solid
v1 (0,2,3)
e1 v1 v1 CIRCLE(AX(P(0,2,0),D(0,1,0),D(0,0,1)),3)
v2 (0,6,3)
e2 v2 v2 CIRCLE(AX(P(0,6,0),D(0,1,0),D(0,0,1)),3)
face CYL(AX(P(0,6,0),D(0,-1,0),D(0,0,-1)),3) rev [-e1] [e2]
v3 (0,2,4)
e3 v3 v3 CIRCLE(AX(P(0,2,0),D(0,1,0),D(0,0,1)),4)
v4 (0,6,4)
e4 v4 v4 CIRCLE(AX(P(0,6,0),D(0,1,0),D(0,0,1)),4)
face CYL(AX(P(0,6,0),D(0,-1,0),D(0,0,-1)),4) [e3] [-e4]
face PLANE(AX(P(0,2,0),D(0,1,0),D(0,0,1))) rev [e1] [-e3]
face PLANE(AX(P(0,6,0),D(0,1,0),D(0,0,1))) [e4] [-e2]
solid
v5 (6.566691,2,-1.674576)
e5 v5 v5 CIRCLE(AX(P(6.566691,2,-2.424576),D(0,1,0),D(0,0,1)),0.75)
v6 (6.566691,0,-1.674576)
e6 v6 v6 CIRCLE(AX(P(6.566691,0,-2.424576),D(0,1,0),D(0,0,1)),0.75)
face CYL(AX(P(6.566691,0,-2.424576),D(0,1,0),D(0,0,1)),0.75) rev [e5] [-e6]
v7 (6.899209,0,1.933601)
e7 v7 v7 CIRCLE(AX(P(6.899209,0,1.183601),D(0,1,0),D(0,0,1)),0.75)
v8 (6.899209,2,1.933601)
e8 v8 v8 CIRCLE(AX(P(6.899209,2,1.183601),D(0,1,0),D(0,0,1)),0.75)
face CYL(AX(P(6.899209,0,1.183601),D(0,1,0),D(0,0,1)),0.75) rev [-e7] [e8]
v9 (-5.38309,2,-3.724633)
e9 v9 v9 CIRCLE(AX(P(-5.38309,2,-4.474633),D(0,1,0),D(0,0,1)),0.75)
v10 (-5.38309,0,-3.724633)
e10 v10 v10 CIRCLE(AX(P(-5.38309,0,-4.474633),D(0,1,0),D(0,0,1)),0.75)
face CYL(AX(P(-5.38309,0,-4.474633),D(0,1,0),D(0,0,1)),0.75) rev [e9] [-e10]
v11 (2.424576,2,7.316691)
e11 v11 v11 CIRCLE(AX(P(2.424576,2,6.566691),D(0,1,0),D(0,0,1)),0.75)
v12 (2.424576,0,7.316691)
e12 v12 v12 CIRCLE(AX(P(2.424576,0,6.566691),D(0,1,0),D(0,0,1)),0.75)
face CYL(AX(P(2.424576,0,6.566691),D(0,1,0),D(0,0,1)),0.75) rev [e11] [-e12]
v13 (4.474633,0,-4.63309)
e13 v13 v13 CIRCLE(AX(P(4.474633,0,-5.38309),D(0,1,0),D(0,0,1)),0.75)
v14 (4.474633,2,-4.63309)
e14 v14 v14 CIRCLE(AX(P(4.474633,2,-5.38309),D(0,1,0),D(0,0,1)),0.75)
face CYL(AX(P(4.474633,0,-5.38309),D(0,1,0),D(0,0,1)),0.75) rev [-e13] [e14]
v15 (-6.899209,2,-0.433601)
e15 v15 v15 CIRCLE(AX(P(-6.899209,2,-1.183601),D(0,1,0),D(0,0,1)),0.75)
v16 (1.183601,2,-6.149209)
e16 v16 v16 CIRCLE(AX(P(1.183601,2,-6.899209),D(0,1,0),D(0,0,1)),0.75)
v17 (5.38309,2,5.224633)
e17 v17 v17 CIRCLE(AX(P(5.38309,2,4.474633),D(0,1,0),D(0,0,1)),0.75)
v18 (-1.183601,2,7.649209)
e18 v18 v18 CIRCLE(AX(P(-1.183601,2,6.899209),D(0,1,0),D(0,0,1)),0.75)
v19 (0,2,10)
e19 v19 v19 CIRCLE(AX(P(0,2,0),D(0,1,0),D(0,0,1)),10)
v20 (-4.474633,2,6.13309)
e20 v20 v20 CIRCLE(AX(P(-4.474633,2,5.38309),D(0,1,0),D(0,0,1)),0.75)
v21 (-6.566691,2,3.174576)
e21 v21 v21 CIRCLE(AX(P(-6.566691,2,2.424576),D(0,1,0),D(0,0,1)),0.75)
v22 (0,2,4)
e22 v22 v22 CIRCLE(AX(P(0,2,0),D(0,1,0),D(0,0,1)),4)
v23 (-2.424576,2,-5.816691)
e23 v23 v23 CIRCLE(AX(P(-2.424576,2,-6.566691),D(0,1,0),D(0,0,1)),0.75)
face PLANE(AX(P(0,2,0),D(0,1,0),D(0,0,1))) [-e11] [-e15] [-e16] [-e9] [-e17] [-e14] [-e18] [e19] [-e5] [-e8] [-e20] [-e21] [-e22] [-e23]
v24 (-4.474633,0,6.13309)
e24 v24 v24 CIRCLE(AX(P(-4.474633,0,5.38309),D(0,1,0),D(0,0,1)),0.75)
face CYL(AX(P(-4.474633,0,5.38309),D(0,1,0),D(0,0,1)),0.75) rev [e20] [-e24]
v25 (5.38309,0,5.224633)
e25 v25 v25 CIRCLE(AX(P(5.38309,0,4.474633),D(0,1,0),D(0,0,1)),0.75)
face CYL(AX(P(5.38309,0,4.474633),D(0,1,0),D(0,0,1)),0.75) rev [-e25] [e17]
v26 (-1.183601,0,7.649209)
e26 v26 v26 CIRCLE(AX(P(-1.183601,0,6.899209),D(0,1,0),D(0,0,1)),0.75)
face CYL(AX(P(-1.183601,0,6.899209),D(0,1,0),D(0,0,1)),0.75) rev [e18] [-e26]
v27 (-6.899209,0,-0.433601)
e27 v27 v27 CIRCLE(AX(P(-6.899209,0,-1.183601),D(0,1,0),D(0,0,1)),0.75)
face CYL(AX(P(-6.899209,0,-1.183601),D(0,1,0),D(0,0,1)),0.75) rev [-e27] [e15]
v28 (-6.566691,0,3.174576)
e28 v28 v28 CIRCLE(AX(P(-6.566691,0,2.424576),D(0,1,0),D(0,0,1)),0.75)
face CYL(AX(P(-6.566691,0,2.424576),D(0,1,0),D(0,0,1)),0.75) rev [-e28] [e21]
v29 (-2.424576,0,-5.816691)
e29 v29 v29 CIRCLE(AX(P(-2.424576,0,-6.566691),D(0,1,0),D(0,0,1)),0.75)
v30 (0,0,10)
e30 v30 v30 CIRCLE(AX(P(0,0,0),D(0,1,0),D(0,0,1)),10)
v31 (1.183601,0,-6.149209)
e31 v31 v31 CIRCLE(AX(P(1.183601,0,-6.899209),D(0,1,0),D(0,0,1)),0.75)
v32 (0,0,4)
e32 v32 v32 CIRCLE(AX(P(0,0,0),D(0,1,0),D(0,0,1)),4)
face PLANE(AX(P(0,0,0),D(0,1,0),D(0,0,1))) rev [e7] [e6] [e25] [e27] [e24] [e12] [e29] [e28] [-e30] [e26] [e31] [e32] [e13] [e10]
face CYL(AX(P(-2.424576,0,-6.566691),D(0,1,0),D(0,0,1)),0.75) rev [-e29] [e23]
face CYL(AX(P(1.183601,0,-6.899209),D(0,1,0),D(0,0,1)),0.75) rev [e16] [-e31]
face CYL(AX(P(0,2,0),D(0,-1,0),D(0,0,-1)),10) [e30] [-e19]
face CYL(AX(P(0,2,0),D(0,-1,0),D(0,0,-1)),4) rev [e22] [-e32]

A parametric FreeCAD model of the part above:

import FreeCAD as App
import Part
import Sketcher
Q = App.Units.Quantity

doc = App.newDocument("Part")
body = doc.addObject("PartDesign::Body", "Body")

# Sketch on XZ plane
sketch1 = body.newObject("Sketcher::SketchObject", "Sketch")
sketch1.AttachmentSupport = (doc.getObject("XZ_Plane"), [""])
sketch1.MapMode = "FlatFace"
sketch1.addGeometry(Part.Circle(App.Vector(0, 0, 0), App.Vector(0, 0, 1), 10), False)
sketch1.addGeometry(Part.Circle(App.Vector(0, 0, 0), App.Vector(0, 0, 1), 4), False)
sketch1.addConstraint(Sketcher.Constraint("Coincident", 0, 3, -1, 1))
sketch1.addConstraint(Sketcher.Constraint("Coincident", 1, 3, -1, 1))
sketch1.addConstraint(Sketcher.Constraint("Diameter", 0, Q("20 mm")))
sketch1.addConstraint(Sketcher.Constraint("Diameter", 1, Q("8 mm")))
pad1 = body.newObject("PartDesign::Pad", "Pad")
pad1.Profile = sketch1
pad1.Length = 2
pad1.Reversed = True

# Sketch on XZ plane
sketch2 = body.newObject("Sketcher::SketchObject", "Sketch001")
sketch2.AttachmentSupport = (doc.getObject("XZ_Plane"), [""])
sketch2.MapMode = "FlatFace"
sketch2.AttachmentOffset = App.Placement(App.Vector(0, 0, -2), App.Rotation())
sketch2.addGeometry(Part.Circle(App.Vector(-5.4, -4.5, 0), App.Vector(0, 0, 1), 0.8), False)
sketch2.addGeometry(Part.Circle(App.Vector(-2.4, -6.6, 0), App.Vector(0, 0, 1), 0.8), False)
sketch2.addGeometry(Part.Circle(App.Vector(1.2, -6.9, 0), App.Vector(0, 0, 1), 0.8), False)
sketch2.addGeometry(Part.Circle(App.Vector(4.5, -5.4, 0), App.Vector(0, 0, 1), 0.8), False)
sketch2.addGeometry(Part.Circle(App.Vector(6.6, -2.4, 0), App.Vector(0, 0, 1), 0.8), False)
sketch2.addGeometry(Part.Circle(App.Vector(6.9, 1.2, 0), App.Vector(0, 0, 1), 0.8), False)
sketch2.addGeometry(Part.Circle(App.Vector(5.4, 4.5, 0), App.Vector(0, 0, 1), 0.8), False)
sketch2.addGeometry(Part.Circle(App.Vector(2.4, 6.6, 0), App.Vector(0, 0, 1), 0.8), False)
sketch2.addGeometry(Part.Circle(App.Vector(-1.2, 6.9, 0), App.Vector(0, 0, 1), 0.8), False)
sketch2.addGeometry(Part.Circle(App.Vector(-4.5, 5.4, 0), App.Vector(0, 0, 1), 0.8), False)
sketch2.addGeometry(Part.Circle(App.Vector(-6.6, 2.4, 0), App.Vector(0, 0, 1), 0.8), False)
sketch2.addGeometry(Part.Circle(App.Vector(-6.9, -1.2, 0), App.Vector(0, 0, 1), 0.8), False)
sketch2.addConstraint(Sketcher.Constraint("Equal", 0, 1))
sketch2.addConstraint(Sketcher.Constraint("Equal", 1, 2))
sketch2.addConstraint(Sketcher.Constraint("Equal", 2, 3))
sketch2.addConstraint(Sketcher.Constraint("Equal", 3, 4))
sketch2.addConstraint(Sketcher.Constraint("Equal", 4, 5))
sketch2.addConstraint(Sketcher.Constraint("Equal", 5, 6))
sketch2.addConstraint(Sketcher.Constraint("Equal", 6, 7))
sketch2.addConstraint(Sketcher.Constraint("Equal", 7, 8))
sketch2.addConstraint(Sketcher.Constraint("Equal", 8, 9))
sketch2.addConstraint(Sketcher.Constraint("Equal", 9, 10))
sketch2.addConstraint(Sketcher.Constraint("Equal", 10, 11))
sketch2.addConstraint(Sketcher.Constraint("Symmetric", 0, 3, 6, 3, -1, 1))
sketch2.addConstraint(Sketcher.Constraint("Symmetric", 1, 3, 7, 3, -1, 1))
sketch2.addConstraint(Sketcher.Constraint("Symmetric", 2, 3, 8, 3, -1, 1))
sketch2.addConstraint(Sketcher.Constraint("Symmetric", 3, 3, 9, 3, -1, 1))
sketch2.addConstraint(Sketcher.Constraint("Symmetric", 4, 3, 10, 3, -1, 1))
sketch2.addConstraint(Sketcher.Constraint("Symmetric", 5, 3, 11, 3, -1, 1))
sketch2.addConstraint(Sketcher.Constraint("Diameter", 0, Q("1.5 mm")))
sketch2.addConstraint(Sketcher.Constraint("DistanceX", -1, 1, 2, 3, Q("1.183601 mm")))
sketch2.addConstraint(Sketcher.Constraint("DistanceY", -1, 1, 5, 3, Q("1.183601 mm")))
sketch2.addConstraint(Sketcher.Constraint("DistanceY", 1, 3, 3, 3, Q("1.183601 mm")))
sketch2.addConstraint(Sketcher.Constraint("DistanceX", 0, 3, 5, 3, Q("12.282299 mm")))
sketch2.addConstraint(Sketcher.Constraint("DistanceX", 6, 3, 4, 3, Q("1.183601 mm")))
sketch2.addConstraint(Sketcher.Constraint("DistanceY", 2, 3, 7, 3, Q("13.4659 mm")))
sketch2.addConstraint(Sketcher.Constraint("DistanceX", 0, 3, -1, 1, Q("5.38309 mm")))
sketch2.addConstraint(Sketcher.Constraint("DistanceY", 1, 3, -1, 1, Q("6.566691 mm")))
sketch2.addConstraint(Sketcher.Constraint("DistanceX", 1, 3, 3, 3, Q("6.899209 mm")))
sketch2.addConstraint(Sketcher.Constraint("DistanceY", 4, 3, 6, 3, Q("6.899209 mm")))
sketch2.addConstraint(Sketcher.Constraint("DistanceY", 0, 3, -1, 1, Q("4.474633 mm")))
sketch2.addConstraint(Sketcher.Constraint("DistanceX", 1, 3, -1, 1, Q("2.424576 mm")))
pocket1 = body.newObject("PartDesign::Pocket", "Pocket")
pocket1.Profile = sketch2
pocket1.Type = "ThroughAll"
pocket1.Reversed = True
body2 = doc.addObject("PartDesign::Body", "Body001")

# Sketch on XZ plane
sketch3 = body2.newObject("Sketcher::SketchObject", "Sketch002")
sketch3.AttachmentSupport = (doc.getObject("XZ_Plane001"), [""])
sketch3.MapMode = "FlatFace"
sketch3.AttachmentOffset = App.Placement(App.Vector(0, 0, -2), App.Rotation())
sketch3.addGeometry(Part.Circle(App.Vector(0, 0, 0), App.Vector(0, 0, 1), 4), False)
sketch3.addGeometry(Part.Circle(App.Vector(0, 0, 0), App.Vector(0, 0, 1), 3), False)
sketch3.addConstraint(Sketcher.Constraint("Coincident", 0, 3, -1, 1))
sketch3.addConstraint(Sketcher.Constraint("Coincident", 1, 3, -1, 1))
sketch3.addConstraint(Sketcher.Constraint("Diameter", 0, Q("8 mm")))
sketch3.addConstraint(Sketcher.Constraint("Diameter", 1, Q("6 mm")))
pad2 = body2.newObject("PartDesign::Pad", "Pad001")
pad2.Profile = sketch3
pad2.Length = 4
pad2.Reversed = True

doc.recompute()
